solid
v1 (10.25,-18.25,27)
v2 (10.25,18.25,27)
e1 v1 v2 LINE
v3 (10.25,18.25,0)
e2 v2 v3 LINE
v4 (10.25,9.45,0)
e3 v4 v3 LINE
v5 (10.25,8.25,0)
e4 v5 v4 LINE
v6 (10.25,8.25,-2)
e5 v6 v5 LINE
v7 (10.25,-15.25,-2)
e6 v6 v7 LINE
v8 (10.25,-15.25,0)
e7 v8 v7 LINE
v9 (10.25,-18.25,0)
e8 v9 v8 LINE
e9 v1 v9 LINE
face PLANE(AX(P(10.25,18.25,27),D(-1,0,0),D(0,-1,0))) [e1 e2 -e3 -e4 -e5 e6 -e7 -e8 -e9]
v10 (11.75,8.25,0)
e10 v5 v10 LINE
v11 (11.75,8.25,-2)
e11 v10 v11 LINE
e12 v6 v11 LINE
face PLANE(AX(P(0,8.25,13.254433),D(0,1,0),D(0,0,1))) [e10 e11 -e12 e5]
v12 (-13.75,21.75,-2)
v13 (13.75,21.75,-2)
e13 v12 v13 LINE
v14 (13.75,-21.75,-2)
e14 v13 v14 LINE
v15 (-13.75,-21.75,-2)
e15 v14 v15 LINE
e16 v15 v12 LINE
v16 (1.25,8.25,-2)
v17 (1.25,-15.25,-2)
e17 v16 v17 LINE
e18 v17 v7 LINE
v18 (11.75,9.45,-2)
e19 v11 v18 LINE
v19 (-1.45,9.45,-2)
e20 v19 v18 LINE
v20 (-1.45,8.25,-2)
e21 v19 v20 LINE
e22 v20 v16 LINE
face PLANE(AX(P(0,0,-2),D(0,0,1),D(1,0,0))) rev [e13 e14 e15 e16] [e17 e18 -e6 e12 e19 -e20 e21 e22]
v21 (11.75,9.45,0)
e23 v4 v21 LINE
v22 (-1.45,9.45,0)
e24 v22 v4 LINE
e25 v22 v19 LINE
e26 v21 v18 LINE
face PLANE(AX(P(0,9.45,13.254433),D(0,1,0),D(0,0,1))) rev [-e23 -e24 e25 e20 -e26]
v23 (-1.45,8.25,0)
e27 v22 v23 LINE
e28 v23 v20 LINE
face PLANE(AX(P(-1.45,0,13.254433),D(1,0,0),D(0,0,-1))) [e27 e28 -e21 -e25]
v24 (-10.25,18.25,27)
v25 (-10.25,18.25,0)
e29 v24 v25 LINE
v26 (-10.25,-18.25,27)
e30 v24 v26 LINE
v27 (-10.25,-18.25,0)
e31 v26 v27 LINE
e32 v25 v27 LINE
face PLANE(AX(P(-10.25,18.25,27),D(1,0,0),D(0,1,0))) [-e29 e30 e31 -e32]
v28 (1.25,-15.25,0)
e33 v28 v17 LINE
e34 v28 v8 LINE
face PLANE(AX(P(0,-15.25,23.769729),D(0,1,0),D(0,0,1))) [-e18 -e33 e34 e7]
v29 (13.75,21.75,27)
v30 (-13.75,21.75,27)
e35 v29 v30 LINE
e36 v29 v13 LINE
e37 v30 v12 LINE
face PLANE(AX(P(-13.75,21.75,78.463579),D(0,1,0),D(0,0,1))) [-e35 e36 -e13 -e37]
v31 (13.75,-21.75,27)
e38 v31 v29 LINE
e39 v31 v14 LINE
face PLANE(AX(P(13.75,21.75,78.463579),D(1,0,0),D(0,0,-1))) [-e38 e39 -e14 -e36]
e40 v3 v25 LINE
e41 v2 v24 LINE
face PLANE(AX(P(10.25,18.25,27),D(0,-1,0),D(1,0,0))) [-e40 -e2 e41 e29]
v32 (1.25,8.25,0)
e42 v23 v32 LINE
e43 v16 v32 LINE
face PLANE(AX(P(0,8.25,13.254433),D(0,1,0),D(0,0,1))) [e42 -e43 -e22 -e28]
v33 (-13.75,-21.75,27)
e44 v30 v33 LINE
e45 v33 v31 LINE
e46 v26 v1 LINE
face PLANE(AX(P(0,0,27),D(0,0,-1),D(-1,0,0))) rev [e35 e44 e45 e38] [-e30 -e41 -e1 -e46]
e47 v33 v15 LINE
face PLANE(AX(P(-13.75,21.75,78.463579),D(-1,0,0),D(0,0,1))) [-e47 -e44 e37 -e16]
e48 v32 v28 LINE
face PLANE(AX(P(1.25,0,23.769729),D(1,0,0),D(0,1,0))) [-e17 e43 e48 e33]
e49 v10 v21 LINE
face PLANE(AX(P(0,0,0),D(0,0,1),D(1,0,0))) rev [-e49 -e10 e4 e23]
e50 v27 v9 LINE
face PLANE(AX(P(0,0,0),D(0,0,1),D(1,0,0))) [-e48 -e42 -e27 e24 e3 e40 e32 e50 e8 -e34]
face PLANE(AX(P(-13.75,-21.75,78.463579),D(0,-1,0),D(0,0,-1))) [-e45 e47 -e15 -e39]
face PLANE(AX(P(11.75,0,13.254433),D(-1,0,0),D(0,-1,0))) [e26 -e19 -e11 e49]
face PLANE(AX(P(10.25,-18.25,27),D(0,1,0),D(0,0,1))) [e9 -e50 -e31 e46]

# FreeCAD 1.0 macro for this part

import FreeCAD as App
import Part
import Sketcher

V = App.Vector
Q = App.Units.Quantity

doc = App.newDocument("Part")
body = doc.addObject("PartDesign::Body", "Body")

# Sketch on XY plane
sketch1 = body.newObject("Sketcher::SketchObject", "Sketch")
sketch1.AttachmentSupport = (doc.getObject("XY_Plane"), [""])
sketch1.MapMode = "FlatFace"
sketch1.addGeometry(Part.LineSegment(V(-12.25, 20.25, 0), V(-12.25, -20.25, 0)), False)
sketch1.addGeometry(Part.LineSegment(V(-12.25, -20.25, 0), V(12.25, -20.25, 0)), False)
sketch1.addGeometry(Part.LineSegment(V(12.25, -20.25, 0), V(12.25, 20.25, 0)), False)
sketch1.addGeometry(Part.LineSegment(V(12.25, 20.25, 0), V(-12.25, 20.25, 0)), False)
sketch1.addGeometry(Part.LineSegment(V(10.25, -18.25, 0), V(-10.25, -18.25, 0)), False)
sketch1.addGeometry(Part.LineSegment(V(-10.25, -18.25, 0), V(-10.25, 18.25, 0)), False)
sketch1.addGeometry(Part.LineSegment(V(-10.25, 18.25, 0), V(10.25, 18.25, 0)), False)
sketch1.addGeometry(Part.LineSegment(V(10.25, 18.25, 0), V(10.25, -18.25, 0)), False)
sketch1.addConstraint(Sketcher.Constraint("Coincident", 0, 2, 1, 1))
sketch1.addConstraint(Sketcher.Constraint("Coincident", 1, 2, 2, 1))
sketch1.addConstraint(Sketcher.Constraint("Coincident", 2, 2, 3, 1))
sketch1.addConstraint(Sketcher.Constraint("Coincident", 3, 2, 0, 1))
sketch1.addConstraint(Sketcher.Constraint("Coincident", 4, 2, 5, 1))
sketch1.addConstraint(Sketcher.Constraint("Coincident", 5, 2, 6, 1))
sketch1.addConstraint(Sketcher.Constraint("Coincident", 6, 2, 7, 1))
sketch1.addConstraint(Sketcher.Constraint("Coincident", 7, 2, 4, 1))
sketch1.addConstraint(Sketcher.Constraint("Vertical", 0))
sketch1.addConstraint(Sketcher.Constraint("Horizontal", 1))
sketch1.addConstraint(Sketcher.Constraint("Vertical", 2))
sketch1.addConstraint(Sketcher.Constraint("Horizontal", 3))
sketch1.addConstraint(Sketcher.Constraint("Horizontal", 4))
sketch1.addConstraint(Sketcher.Constraint("Vertical", 5))
sketch1.addConstraint(Sketcher.Constraint("Horizontal", 6))
sketch1.addConstraint(Sketcher.Constraint("Vertical", 7))
sketch1.addConstraint(Sketcher.Constraint("Symmetric", 0, 2, 2, 2, -1, 1))
sketch1.addConstraint(Sketcher.Constraint("Symmetric", 4, 2, 6, 2, -1, 1))
sketch1.addConstraint(Sketcher.Constraint("DistanceX", 1, 1, 1, 2, Q("24.5 mm")))
sketch1.addConstraint(Sketcher.Constraint("DistanceX", 4, 2, 4, 1, Q("20.5 mm")))
sketch1.addConstraint(Sketcher.Constraint("DistanceY", 0, 2, 0, 1, Q("40.5 mm")))
sketch1.addConstraint(Sketcher.Constraint("DistanceY", 5, 1, 5, 2, Q("36.5 mm")))
pad1 = body.newObject("PartDesign::Pad", "Pad")
pad1.Profile = sketch1
pad1.Length = 27

# Sketch on XY plane
sketch2 = body.newObject("Sketcher::SketchObject", "Sketch001")
sketch2.AttachmentSupport = (doc.getObject("XY_Plane"), [""])
sketch2.MapMode = "FlatFace"
sketch2.addGeometry(Part.LineSegment(V(-12.25, 20.25, 0), V(-12.25, -20.25, 0)), False)
sketch2.addGeometry(Part.LineSegment(V(-12.25, -20.25, 0), V(12.25, -20.25, 0)), False)
sketch2.addGeometry(Part.LineSegment(V(12.25, -20.25, 0), V(12.25, 20.25, 0)), False)
sketch2.addGeometry(Part.LineSegment(V(12.25, 20.25, 0), V(-12.25, 20.25, 0)), False)
sketch2.addConstraint(Sketcher.Constraint("Coincident", 0, 2, 1, 1))
sketch2.addConstraint(Sketcher.Constraint("Coincident", 1, 2, 2, 1))
sketch2.addConstraint(Sketcher.Constraint("Coincident", 2, 2, 3, 1))
sketch2.addConstraint(Sketcher.Constraint("Coincident", 3, 2, 0, 1))
sketch2.addConstraint(Sketcher.Constraint("Vertical", 0))
sketch2.addConstraint(Sketcher.Constraint("Horizontal", 1))
sketch2.addConstraint(Sketcher.Constraint("Vertical", 2))
sketch2.addConstraint(Sketcher.Constraint("Horizontal", 3))
sketch2.addConstraint(Sketcher.Constraint("Symmetric", 0, 2, 2, 2, -1, 1))
sketch2.addConstraint(Sketcher.Constraint("DistanceX", 1, 1, 1, 2, Q("24.5 mm")))
sketch2.addConstraint(Sketcher.Constraint("DistanceY", 0, 2, 0, 1, Q("40.5 mm")))
pad2 = body.newObject("PartDesign::Pad", "Pad001")
pad2.Profile = sketch2
pad2.Length = 2
pad2.Reversed = True

# Sketch on XY plane
sketch3 = body.newObject("Sketcher::SketchObject", "Sketch002")
sketch3.AttachmentSupport = (doc.getObject("XY_Plane"), [""])
sketch3.MapMode = "FlatFace"
sketch3.AttachmentOffset = App.Placement(V(0, 0, -2), App.Rotation())
sketch3.addGeometry(Part.LineSegment(V(10.25, 6.75, 0), V(10.25, -15.25, 0)), False)
sketch3.addGeometry(Part.LineSegment(V(10.25, -15.25, 0), V(1.25, -15.25, 0)), False)
sketch3.addGeometry(Part.LineSegment(V(1.25, -15.25, 0), V(1.25, 6.75, 0)), False)
sketch3.addGeometry(Part.LineSegment(V(1.25, 6.75, 0), V(10.25, 6.75, 0)), False)
sketch3.addConstraint(Sketcher.Constraint("Coincident", 0, 2, 1, 1))
sketch3.addConstraint(Sketcher.Constraint("Coincident", 1, 2, 2, 1))
sketch3.addConstraint(Sketcher.Constraint("Coincident", 2, 2, 3, 1))
sketch3.addConstraint(Sketcher.Constraint("Coincident", 3, 2, 0, 1))
sketch3.addConstraint(Sketcher.Constraint("Vertical", 0))
sketch3.addConstraint(Sketcher.Constraint("Horizontal", 1))
sketch3.addConstraint(Sketcher.Constraint("Vertical", 2))
sketch3.addConstraint(Sketcher.Constraint("Horizontal", 3))
sketch3.addConstraint(Sketcher.Constraint("DistanceX", 1, 2, 1, 1, Q("9 mm")))
sketch3.addConstraint(Sketcher.Constraint("DistanceY", 0, 2, 0, 1, Q("22 mm")))
sketch3.addConstraint(Sketcher.Constraint("DistanceX", -1, 1, 0, 2, Q("10.25 mm")))
sketch3.addConstraint(Sketcher.Constraint("DistanceY", 0, 2, -1, 1, Q("15.25 mm")))
pocket1 = body.newObject("PartDesign::Pocket", "Pocket")
pocket1.Profile = sketch3
pocket1.Length = 2
pocket1.Reversed = True

# Sketch on XY plane
sketch4 = body.newObject("Sketcher::SketchObject", "Sketch003")
sketch4.AttachmentSupport = (doc.getObject("XY_Plane"), [""])
sketch4.MapMode = "FlatFace"
sketch4.AttachmentOffset = App.Placement(V(0, 0, -2), App.Rotation())
sketch4.addGeometry(Part.LineSegment(V(11.75, 9.45, 0), V(11.75, 8.25, 0)), False)
sketch4.addGeometry(Part.LineSegment(V(11.75, 8.25, 0), V(-1.45, 8.25, 0)), False)
sketch4.addGeometry(Part.LineSegment(V(-1.45, 8.25, 0), V(-1.45, 9.45, 0)), False)
sketch4.addGeometry(Part.LineSegment(V(-1.45, 9.45, 0), V(11.75, 9.45, 0)), False)
sketch4.addConstraint(Sketcher.Constraint("Coincident", 0, 2, 1, 1))
sketch4.addConstraint(Sketcher.Constraint("Coincident", 1, 2, 2, 1))
sketch4.addConstraint(Sketcher.Constraint("Coincident", 2, 2, 3, 1))
sketch4.addConstraint(Sketcher.Constraint("Coincident", 3, 2, 0, 1))
sketch4.addConstraint(Sketcher.Constraint("Vertical", 0))
sketch4.addConstraint(Sketcher.Constraint("Horizontal", 1))
sketch4.addConstraint(Sketcher.Constraint("Vertical", 2))
sketch4.addConstraint(Sketcher.Constraint("Horizontal", 3))
sketch4.addConstraint(Sketcher.Constraint("DistanceX", 1, 2, 1, 1, Q("13.2 mm")))
sketch4.addConstraint(Sketcher.Constraint("DistanceY", 0, 2, 0, 1, Q("1.2 mm")))
sketch4.addConstraint(Sketcher.Constraint("DistanceX", -1, 1, 0, 2, Q("11.75 mm")))
sketch4.addConstraint(Sketcher.Constraint("DistanceY", -1, 1, 0, 2, Q("8.25 mm")))
pocket2 = body.newObject("PartDesign::Pocket", "Pocket001")
pocket2.Profile = sketch4
pocket2.Length = 2
pocket2.Reversed = True

# Sketch on XY plane
sketch5 = body.newObject("Sketcher::SketchObject", "Sketch004")
sketch5.AttachmentSupport = (doc.getObject("XY_Plane"), [""])
sketch5.MapMode = "FlatFace"
sketch5.AttachmentOffset = App.Placement(V(0, 0, -2), App.Rotation())
sketch5.addGeometry(Part.LineSegment(V(13.75, 21.75, 0), V(13.75, -21.75, 0)), False)
sketch5.addGeometry(Part.LineSegment(V(13.75, -21.75, 0), V(-13.75, -21.75, 0)), False)
sketch5.addGeometry(Part.LineSegment(V(-13.75, -21.75, 0), V(-13.75, 21.75, 0)), False)
sketch5.addGeometry(Part.LineSegment(V(-13.75, 21.75, 0), V(13.75, 21.75, 0)), False)
sketch5.addGeometry(Part.LineSegment(V(-12.25, -20.25, 0), V(12.25, -20.25, 0)), False)
sketch5.addGeometry(Part.LineSegment(V(12.25, -20.25, 0), V(12.25, 20.25, 0)), False)
sketch5.addGeometry(Part.LineSegment(V(12.25, 20.25, 0), V(-12.25, 20.25, 0)), False)
sketch5.addGeometry(Part.LineSegment(V(-12.25, 20.25, 0), V(-12.25, -20.25, 0)), False)
sketch5.addConstraint(Sketcher.Constraint("Coincident", 0, 2, 1, 1))
sketch5.addConstraint(Sketcher.Constraint("Coincident", 1, 2, 2, 1))
sketch5.addConstraint(Sketcher.Constraint("Coincident", 2, 2, 3, 1))
sketch5.addConstraint(Sketcher.Constraint("Coincident", 3, 2, 0, 1))
sketch5.addConstraint(Sketcher.Constraint("Coincident", 4, 2, 5, 1))
sketch5.addConstraint(Sketcher.Constraint("Coincident", 5, 2, 6, 1))
sketch5.addConstraint(Sketcher.Constraint("Coincident", 6, 2, 7, 1))
sketch5.addConstraint(Sketcher.Constraint("Coincident", 7, 2, 4, 1))
sketch5.addConstraint(Sketcher.Constraint("Vertical", 0))
sketch5.addConstraint(Sketcher.Constraint("Horizontal", 1))
sketch5.addConstraint(Sketcher.Constraint("Vertical", 2))
sketch5.addConstraint(Sketcher.Constraint("Horizontal", 3))
sketch5.addConstraint(Sketcher.Constraint("Horizontal", 4))
sketch5.addConstraint(Sketcher.Constraint("Vertical", 5))
sketch5.addConstraint(Sketcher.Constraint("Horizontal", 6))
sketch5.addConstraint(Sketcher.Constraint("Vertical", 7))
sketch5.addConstraint(Sketcher.Constraint("Symmetric", 0, 2, 2, 2, -1, 1))
sketch5.addConstraint(Sketcher.Constraint("Symmetric", 4, 2, 6, 2, -1, 1))
sketch5.addConstraint(Sketcher.Constraint("DistanceX", 1, 2, 1, 1, Q("27.5 mm")))
sketch5.addConstraint(Sketcher.Constraint("DistanceX", 4, 1, 4, 2, Q("24.5 mm")))
sketch5.addConstraint(Sketcher.Constraint("DistanceY", 0, 2, 0, 1, Q("43.5 mm")))
sketch5.addConstraint(Sketcher.Constraint("DistanceY", 5, 1, 5, 2, Q("40.5 mm")))
pad3 = body.newObject("PartDesign::Pad", "Pad002")
pad3.Profile = sketch5
pad3.Length = 29

# Sketch on XY plane
sketch6 = body.newObject("Sketcher::SketchObject", "Sketch005")
sketch6.AttachmentSupport = (doc.getObject("XY_Plane"), [""])
sketch6.MapMode = "FlatFace"
sketch6.addGeometry(Part.LineSegment(V(1.25, 8.25, 0), V(1.25, 6.75, 0)), False)
sketch6.addGeometry(Part.LineSegment(V(1.25, 6.75, 0), V(10.25, 6.75, 0)), False)
sketch6.addGeometry(Part.LineSegment(V(10.25, 6.75, 0), V(10.25, 8.25, 0)), False)
sketch6.addGeometry(Part.LineSegment(V(10.25, 8.25, 0), V(1.25, 8.25, 0)), False)
sketch6.addConstraint(Sketcher.Constraint("Coincident", 0, 2, 1, 1))
sketch6.addConstraint(Sketcher.Constraint("Coincident", 1, 2, 2, 1))
sketch6.addConstraint(Sketcher.Constraint("Coincident", 2, 2, 3, 1))
sketch6.addConstraint(Sketcher.Constraint("Coincident", 3, 2, 0, 1))
sketch6.addConstraint(Sketcher.Constraint("Vertical", 0))
sketch6.addConstraint(Sketcher.Constraint("Horizontal", 1))
sketch6.addConstraint(Sketcher.Constraint("Vertical", 2))
sketch6.addConstraint(Sketcher.Constraint("Horizontal", 3))
sketch6.addConstraint(Sketcher.Constraint("DistanceX", 1, 1, 1, 2, Q("9 mm")))
sketch6.addConstraint(Sketcher.Constraint("DistanceY", 0, 2, 0, 1, Q("1.5 mm")))
sketch6.addConstraint(Sketcher.Constraint("DistanceX", -1, 1, 0, 2, Q("1.25 mm")))
sketch6.addConstraint(Sketcher.Constraint("DistanceY", -1, 1, 0, 2, Q("6.75 mm")))
pocket3 = body.newObject("PartDesign::Pocket", "Pocket002")
pocket3.Profile = sketch6
pocket3.Length = 2

doc.recompute()
